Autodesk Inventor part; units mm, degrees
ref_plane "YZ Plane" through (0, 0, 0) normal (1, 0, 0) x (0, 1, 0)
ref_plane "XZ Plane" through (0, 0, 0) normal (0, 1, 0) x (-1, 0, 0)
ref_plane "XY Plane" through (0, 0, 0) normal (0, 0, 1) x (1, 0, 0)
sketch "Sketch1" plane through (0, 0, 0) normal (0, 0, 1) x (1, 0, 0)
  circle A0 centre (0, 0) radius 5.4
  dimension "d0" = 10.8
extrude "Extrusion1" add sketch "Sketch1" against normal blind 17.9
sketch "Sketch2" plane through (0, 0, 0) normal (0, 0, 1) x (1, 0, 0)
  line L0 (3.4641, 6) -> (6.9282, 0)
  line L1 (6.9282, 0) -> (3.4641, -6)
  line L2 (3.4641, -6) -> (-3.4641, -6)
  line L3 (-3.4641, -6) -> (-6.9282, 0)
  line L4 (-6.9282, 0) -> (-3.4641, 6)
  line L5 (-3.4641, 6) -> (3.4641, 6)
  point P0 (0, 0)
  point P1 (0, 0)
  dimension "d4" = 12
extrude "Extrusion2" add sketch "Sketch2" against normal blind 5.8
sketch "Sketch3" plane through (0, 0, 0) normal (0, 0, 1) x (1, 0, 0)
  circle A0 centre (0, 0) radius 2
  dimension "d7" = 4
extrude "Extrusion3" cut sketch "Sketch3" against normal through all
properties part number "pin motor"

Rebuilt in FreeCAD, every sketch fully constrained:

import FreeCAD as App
import Part
import Sketcher

V = App.Vector
Q = App.Units.Quantity

doc = App.newDocument("Part")
params = doc.addObject("Spreadsheet::Sheet", "Params")
for row, (alias, value) in enumerate([
    ("sketch1_diameter", "10.8 mm"),
    ("pad1_length", "17.9 mm"),
    ("pad2_length", "5.8 mm"),
    ("sketch3_diameter", "4 mm"),
], start=1):
    params.set(f"A{row}", alias)
    params.set(f"B{row}", "=" + value)
    params.setAlias(f"B{row}", alias)

body = doc.addObject("PartDesign::Body", "Body")

sketch1 = body.newObject("Sketcher::SketchObject", "Sketch")
sketch1.AttachmentSupport = (doc.getObject("XY_Plane"), [""])
sketch1.MapMode = "FlatFace"
sketch1.addGeometry(Part.Circle(V(0, 0, 0), V(0, 0, 1), 5.4), False)
sketch1.addConstraint([
    Sketcher.Constraint("Coincident", 0, 3, -1, 1),
    Sketcher.Constraint("Diameter", 0, Q("10.8 mm")),
])
sketch1.setExpression("Constraints[1]", "Params.sketch1_diameter")
pad1 = body.newObject("PartDesign::Pad", "Pad")
pad1.Profile = sketch1
pad1.setExpression("Length", "Params.pad1_length")
pad1.Reversed = True

sketch2 = body.newObject("Sketcher::SketchObject", "Sketch001")
sketch2.AttachmentSupport = (doc.getObject("XY_Plane"), [""])
sketch2.MapMode = "FlatFace"
sketch2.addGeometry([
    Part.LineSegment(V(6.9282, 0, 0), V(3.4641, 6, 0)),
    Part.LineSegment(V(3.4641, 6, 0), V(-3.4641, 6, 0)),
    Part.LineSegment(V(-3.4641, 6, 0), V(-6.9282, 0, 0)),
    Part.LineSegment(V(-6.9282, 0, 0), V(-3.4641, -6, 0)),
    Part.LineSegment(V(-3.4641, -6, 0), V(3.4641, -6, 0)),
    Part.LineSegment(V(3.4641, -6, 0), V(6.9282, 0, 0)),
], False)
sketch2.addConstraint([
    Sketcher.Constraint("Coincident", 0, 2, 1, 1),
    Sketcher.Constraint("Coincident", 1, 2, 2, 1),
    Sketcher.Constraint("Coincident", 2, 2, 3, 1),
    Sketcher.Constraint("Coincident", 3, 2, 4, 1),
    Sketcher.Constraint("Coincident", 4, 2, 5, 1),
    Sketcher.Constraint("Coincident", 5, 2, 0, 1),
    Sketcher.Constraint("Horizontal", 1),
    Sketcher.Constraint("Horizontal", 4),
    Sketcher.Constraint("Symmetric", 0, 2, 3, 2, -1, 1),
    Sketcher.Constraint("Symmetric", 2, 2, 5, 2, -1, 1),
    Sketcher.Constraint("PointOnObject", 2, 2, -1),
    Sketcher.Constraint("Parallel", 2, 5),
    Sketcher.Constraint("Vertical", 1, 2, 3, 2),
    Sketcher.Constraint("DistanceY", 3, 2, 1, 2, Q("12 mm")),
    Sketcher.Constraint("Angle", 0, Q("120 deg")),
    Sketcher.Constraint("DistanceX", 1, 2, 1, 1, Q("6.9282 mm")),
])
pad2 = body.newObject("PartDesign::Pad", "Pad001")
pad2.Profile = sketch2
pad2.setExpression("Length", "Params.pad2_length")
pad2.Reversed = True

sketch3 = body.newObject("Sketcher::SketchObject", "Sketch002")
sketch3.AttachmentSupport = (doc.getObject("XY_Plane"), [""])
sketch3.MapMode = "FlatFace"
sketch3.addGeometry(Part.Circle(V(0, 0, 0), V(0, 0, 1), 2), False)
sketch3.addConstraint([
    Sketcher.Constraint("Coincident", 0, 3, -1, 1),
    Sketcher.Constraint("Diameter", 0, Q("4 mm")),
])
sketch3.setExpression("Constraints[1]", "Params.sketch3_diameter")
pocket1 = body.newObject("PartDesign::Pocket", "Pocket")
pocket1.Profile = sketch3
pocket1.Type = "ThroughAll"

doc.recompute()
